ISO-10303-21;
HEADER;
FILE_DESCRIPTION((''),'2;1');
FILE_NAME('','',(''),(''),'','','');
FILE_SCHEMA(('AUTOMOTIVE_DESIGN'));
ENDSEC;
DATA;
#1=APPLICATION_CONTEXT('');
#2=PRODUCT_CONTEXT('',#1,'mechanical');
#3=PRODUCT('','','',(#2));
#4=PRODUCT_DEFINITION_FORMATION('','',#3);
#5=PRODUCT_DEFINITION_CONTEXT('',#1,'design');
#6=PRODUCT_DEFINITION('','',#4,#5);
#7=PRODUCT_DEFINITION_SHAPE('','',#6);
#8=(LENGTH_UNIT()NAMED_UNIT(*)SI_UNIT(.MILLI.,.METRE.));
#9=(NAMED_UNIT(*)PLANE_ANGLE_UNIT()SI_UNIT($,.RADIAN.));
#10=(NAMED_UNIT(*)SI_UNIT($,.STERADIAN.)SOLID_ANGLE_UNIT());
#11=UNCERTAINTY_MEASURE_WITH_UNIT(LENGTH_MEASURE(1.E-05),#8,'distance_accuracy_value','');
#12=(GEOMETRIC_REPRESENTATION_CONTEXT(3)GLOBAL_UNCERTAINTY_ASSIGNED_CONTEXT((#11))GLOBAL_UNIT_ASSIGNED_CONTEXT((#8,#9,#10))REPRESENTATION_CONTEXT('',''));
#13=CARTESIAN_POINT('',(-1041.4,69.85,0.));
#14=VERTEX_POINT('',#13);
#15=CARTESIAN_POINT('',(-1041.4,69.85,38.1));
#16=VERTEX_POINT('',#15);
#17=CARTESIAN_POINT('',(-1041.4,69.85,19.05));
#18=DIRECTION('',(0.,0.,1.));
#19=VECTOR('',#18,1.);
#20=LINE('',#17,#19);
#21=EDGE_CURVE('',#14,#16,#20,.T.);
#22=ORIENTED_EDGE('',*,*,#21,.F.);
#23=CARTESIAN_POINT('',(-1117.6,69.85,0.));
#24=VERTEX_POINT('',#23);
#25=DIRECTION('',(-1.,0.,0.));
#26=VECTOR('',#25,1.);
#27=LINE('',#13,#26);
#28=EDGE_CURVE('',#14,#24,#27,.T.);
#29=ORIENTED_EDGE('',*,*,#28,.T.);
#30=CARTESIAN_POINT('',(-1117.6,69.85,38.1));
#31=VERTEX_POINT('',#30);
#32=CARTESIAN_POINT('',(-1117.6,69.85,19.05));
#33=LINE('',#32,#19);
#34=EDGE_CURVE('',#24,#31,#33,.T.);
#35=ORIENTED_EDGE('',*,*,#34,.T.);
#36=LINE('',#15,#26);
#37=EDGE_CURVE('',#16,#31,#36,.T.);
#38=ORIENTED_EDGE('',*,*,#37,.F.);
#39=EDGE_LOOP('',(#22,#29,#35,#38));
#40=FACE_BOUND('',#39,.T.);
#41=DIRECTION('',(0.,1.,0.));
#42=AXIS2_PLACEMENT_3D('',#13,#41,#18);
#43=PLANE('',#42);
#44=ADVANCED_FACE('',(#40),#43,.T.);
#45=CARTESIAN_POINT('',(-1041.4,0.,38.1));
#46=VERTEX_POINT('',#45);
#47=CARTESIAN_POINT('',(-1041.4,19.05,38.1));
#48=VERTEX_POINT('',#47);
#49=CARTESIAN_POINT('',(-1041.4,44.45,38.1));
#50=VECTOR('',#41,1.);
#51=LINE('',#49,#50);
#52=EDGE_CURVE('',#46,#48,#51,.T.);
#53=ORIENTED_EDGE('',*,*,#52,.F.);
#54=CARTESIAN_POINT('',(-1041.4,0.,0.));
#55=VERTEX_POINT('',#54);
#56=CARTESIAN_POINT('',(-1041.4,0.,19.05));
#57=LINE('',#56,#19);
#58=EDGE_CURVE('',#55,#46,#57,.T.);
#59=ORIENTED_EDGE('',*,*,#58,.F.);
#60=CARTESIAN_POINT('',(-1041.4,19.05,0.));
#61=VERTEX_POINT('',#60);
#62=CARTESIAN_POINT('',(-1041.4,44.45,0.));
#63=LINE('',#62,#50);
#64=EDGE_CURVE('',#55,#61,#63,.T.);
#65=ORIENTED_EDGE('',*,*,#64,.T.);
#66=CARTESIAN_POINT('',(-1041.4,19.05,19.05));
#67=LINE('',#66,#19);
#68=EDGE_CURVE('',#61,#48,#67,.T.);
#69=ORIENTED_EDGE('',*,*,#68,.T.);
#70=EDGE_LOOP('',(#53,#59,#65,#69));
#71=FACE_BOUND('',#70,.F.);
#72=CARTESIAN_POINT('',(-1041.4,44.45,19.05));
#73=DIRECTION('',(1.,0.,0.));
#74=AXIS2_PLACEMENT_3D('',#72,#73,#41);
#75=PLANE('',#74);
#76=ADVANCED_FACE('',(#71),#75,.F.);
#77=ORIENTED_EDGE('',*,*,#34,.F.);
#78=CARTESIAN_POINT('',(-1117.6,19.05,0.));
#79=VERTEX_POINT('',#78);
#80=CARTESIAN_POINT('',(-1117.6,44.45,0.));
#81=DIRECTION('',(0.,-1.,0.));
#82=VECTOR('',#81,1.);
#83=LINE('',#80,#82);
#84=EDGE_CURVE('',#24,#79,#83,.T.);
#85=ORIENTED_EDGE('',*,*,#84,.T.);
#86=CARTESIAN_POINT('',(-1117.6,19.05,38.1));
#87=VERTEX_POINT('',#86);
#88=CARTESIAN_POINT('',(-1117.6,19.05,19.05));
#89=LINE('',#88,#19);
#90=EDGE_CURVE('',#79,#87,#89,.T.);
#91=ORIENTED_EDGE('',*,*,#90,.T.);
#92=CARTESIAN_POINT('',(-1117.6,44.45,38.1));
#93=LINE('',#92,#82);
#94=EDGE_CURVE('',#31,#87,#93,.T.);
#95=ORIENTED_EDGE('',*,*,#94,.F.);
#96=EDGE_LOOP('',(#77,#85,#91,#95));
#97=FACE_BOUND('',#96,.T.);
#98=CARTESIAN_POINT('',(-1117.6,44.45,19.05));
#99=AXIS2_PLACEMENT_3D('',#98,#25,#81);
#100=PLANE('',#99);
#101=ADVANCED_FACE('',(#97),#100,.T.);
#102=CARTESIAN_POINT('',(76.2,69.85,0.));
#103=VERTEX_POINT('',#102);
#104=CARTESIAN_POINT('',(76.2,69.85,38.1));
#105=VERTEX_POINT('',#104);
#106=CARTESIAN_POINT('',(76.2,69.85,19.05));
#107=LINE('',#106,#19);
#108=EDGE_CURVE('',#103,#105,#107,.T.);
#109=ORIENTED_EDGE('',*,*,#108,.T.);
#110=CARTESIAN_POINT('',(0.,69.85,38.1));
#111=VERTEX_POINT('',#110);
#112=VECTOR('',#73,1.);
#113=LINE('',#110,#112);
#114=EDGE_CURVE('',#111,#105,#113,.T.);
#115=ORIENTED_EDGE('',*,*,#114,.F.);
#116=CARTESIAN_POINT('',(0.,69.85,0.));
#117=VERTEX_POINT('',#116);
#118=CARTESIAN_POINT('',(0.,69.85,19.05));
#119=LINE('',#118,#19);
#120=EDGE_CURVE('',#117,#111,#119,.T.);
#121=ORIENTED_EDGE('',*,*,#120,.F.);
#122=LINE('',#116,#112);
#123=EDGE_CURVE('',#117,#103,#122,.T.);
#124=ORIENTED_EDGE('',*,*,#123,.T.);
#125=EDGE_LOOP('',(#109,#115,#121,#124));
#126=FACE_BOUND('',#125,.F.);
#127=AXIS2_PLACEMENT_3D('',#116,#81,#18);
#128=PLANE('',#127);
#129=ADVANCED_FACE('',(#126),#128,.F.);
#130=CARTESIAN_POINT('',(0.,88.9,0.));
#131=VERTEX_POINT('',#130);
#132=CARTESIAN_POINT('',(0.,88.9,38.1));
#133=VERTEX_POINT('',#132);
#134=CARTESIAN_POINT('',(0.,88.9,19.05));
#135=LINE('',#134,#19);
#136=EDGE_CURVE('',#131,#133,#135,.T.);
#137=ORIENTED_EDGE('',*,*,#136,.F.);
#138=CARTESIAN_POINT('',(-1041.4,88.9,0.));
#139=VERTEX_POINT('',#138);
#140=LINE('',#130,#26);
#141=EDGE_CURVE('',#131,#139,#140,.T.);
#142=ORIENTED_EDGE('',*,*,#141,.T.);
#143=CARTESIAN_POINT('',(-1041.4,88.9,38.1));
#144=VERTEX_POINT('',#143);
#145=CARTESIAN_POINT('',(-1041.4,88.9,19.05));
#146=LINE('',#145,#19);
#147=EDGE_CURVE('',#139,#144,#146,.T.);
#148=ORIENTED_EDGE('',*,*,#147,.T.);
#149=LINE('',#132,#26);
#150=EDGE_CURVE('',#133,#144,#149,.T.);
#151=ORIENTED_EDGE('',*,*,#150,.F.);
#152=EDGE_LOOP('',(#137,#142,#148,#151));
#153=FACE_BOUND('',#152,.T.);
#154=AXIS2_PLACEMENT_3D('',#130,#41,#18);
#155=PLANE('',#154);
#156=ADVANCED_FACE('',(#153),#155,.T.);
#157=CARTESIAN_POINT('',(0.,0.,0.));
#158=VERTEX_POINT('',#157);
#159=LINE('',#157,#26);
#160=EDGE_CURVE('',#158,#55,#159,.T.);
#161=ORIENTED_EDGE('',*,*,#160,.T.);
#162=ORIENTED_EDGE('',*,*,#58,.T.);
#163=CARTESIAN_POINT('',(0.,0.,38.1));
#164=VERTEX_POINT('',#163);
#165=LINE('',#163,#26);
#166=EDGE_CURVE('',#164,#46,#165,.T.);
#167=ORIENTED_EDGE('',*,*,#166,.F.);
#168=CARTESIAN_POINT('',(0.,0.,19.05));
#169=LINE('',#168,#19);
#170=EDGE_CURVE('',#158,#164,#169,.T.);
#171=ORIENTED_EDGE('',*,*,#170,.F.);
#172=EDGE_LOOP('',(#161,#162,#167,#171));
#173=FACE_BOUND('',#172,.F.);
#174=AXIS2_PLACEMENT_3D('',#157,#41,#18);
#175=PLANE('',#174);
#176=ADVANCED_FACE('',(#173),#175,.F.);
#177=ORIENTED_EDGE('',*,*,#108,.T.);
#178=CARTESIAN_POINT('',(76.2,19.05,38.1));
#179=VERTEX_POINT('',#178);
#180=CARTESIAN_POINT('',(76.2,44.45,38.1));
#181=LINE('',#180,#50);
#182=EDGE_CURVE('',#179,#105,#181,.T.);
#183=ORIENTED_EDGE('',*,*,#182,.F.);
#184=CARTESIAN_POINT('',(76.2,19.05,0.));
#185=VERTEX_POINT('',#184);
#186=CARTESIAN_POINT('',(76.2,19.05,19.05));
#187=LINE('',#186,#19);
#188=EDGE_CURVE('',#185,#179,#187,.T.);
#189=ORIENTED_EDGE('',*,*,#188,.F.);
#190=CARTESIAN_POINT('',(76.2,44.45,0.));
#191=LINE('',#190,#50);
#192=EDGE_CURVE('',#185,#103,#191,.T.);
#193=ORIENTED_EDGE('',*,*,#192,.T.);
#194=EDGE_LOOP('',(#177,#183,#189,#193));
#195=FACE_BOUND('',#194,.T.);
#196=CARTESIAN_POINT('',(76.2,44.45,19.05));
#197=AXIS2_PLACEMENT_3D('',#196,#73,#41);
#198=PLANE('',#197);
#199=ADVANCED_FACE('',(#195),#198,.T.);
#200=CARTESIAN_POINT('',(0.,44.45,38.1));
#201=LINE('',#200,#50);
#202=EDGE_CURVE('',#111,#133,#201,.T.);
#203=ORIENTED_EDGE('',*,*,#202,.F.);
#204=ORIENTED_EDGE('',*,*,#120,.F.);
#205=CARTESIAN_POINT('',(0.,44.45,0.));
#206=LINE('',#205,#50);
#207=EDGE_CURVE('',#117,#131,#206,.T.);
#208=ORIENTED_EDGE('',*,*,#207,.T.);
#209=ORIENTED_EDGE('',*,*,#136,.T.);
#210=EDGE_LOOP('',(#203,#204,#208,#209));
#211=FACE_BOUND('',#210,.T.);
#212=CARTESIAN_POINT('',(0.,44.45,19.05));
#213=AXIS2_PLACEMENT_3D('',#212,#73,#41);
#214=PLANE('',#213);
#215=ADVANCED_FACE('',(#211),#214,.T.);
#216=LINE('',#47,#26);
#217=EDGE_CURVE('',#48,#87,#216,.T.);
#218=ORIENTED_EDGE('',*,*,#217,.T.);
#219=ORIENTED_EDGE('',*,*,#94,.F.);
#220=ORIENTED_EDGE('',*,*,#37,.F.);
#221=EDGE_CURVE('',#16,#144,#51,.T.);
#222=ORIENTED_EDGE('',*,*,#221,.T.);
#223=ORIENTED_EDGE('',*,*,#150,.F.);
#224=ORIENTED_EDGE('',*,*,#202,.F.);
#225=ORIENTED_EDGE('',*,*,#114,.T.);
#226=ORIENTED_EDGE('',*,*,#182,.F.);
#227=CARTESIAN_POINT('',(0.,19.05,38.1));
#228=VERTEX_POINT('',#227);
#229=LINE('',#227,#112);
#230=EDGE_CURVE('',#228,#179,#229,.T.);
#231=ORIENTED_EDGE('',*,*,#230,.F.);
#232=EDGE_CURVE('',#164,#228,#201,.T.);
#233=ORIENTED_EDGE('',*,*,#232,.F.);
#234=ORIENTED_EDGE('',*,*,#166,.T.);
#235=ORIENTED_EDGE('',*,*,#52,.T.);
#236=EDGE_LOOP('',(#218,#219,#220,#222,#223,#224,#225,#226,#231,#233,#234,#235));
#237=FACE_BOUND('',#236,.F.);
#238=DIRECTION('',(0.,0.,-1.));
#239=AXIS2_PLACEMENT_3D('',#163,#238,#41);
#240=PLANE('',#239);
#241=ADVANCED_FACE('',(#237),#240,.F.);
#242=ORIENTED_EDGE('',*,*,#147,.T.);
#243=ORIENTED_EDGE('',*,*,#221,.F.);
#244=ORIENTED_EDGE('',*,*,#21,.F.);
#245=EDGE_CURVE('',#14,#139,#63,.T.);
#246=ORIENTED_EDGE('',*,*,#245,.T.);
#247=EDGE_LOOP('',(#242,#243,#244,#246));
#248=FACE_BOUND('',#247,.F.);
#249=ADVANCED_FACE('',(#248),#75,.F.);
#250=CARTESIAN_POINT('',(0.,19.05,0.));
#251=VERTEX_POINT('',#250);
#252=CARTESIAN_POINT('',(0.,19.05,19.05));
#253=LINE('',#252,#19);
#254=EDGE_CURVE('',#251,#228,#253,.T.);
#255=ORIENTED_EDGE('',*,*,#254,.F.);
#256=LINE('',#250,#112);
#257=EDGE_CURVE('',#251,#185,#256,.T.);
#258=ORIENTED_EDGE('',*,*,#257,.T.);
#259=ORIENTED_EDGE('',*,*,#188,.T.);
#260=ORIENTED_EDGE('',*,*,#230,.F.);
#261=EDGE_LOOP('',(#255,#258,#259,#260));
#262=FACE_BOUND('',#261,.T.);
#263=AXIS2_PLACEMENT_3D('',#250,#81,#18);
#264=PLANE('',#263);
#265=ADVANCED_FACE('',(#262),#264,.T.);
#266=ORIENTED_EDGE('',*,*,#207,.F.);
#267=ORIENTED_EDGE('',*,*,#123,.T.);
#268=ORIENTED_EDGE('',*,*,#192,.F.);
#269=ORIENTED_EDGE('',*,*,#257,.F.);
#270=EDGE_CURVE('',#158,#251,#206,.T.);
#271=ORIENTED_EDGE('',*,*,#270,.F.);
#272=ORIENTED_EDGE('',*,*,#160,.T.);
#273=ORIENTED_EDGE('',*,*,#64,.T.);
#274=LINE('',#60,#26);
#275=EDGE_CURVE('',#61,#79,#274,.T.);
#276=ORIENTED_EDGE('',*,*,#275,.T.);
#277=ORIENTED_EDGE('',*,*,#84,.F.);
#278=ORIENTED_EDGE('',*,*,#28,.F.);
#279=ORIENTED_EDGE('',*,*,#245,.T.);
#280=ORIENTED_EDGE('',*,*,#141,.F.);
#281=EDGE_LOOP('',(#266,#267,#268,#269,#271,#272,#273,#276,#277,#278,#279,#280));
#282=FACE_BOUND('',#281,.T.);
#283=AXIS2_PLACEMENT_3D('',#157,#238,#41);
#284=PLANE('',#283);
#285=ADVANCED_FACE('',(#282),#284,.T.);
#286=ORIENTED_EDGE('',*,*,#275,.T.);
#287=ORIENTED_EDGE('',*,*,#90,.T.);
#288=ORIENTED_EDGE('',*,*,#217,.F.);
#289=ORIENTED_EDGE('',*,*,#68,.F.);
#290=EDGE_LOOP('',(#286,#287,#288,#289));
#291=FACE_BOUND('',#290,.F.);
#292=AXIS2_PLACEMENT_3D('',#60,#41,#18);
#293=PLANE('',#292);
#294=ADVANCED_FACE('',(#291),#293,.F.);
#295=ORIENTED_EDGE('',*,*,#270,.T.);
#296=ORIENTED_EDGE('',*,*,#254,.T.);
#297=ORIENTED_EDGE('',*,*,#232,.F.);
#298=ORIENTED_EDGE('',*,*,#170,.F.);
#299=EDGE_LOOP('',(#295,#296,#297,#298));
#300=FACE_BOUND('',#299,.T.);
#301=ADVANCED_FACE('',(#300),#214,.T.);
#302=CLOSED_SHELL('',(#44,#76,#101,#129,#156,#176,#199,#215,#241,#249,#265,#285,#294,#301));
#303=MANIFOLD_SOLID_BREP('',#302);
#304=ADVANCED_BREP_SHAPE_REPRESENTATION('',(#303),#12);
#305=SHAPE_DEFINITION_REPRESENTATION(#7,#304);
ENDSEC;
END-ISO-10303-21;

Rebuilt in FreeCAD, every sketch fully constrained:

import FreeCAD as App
import Part
import Sketcher
Q = App.Units.Quantity


def add_polygon(sketch, points):
    """Adds a closed chain of lines whose ends are joined by coincident constraints."""
    first, n = sketch.GeometryCount, len(points)
    for a, b in zip(points, points[1:] + points[:1]):
        sketch.addGeometry(Part.LineSegment(App.Vector(*a, 0), App.Vector(*b, 0)), False)
    for i in range(n):
        sketch.addConstraint(Sketcher.Constraint("Coincident", first + i, 2, first + (i + 1) % n, 1))

doc = App.newDocument("Part")
body = doc.addObject("PartDesign::Body", "Body")

# Sketch on YZ plane
sketch1 = body.newObject("Sketcher::SketchObject", "Sketch")
sketch1.AttachmentSupport = (doc.getObject("YZ_Plane"), [""])
sketch1.MapMode = "FlatFace"
add_polygon(sketch1, [(0, 38), (0, 0), (89, 0), (89, 38)])  # lines 0-3
sketch1.addConstraint(Sketcher.Constraint("Vertical", 0))
sketch1.addConstraint(Sketcher.Constraint("Horizontal", 1))
sketch1.addConstraint(Sketcher.Constraint("Vertical", 2))
sketch1.addConstraint(Sketcher.Constraint("Horizontal", 3))
sketch1.addConstraint(Sketcher.Constraint("Coincident", 0, 2, -1, 1))
sketch1.addConstraint(Sketcher.Constraint("DistanceX", 1, 1, 1, 2, Q("3.5 in")))
sketch1.addConstraint(Sketcher.Constraint("DistanceY", 0, 2, 0, 1, Q("1.5 in")))
pad1 = body.newObject("PartDesign::Pad", "Pad")
pad1.Profile = sketch1
pad1.Length = Q("41 in")
pad1.Reversed = True

# Sketch on YZ plane
sketch2 = body.newObject("Sketcher::SketchObject", "Sketch001")
sketch2.AttachmentSupport = (doc.getObject("YZ_Plane"), [""])
sketch2.MapMode = "FlatFace"
add_polygon(sketch2, [(19, 38), (19, 0), (70, 0), (70, 38)])  # lines 0-3
sketch2.addConstraint(Sketcher.Constraint("Vertical", 0))
sketch2.addConstraint(Sketcher.Constraint("Horizontal", 1))
sketch2.addConstraint(Sketcher.Constraint("Vertical", 2))
sketch2.addConstraint(Sketcher.Constraint("Horizontal", 3))
sketch2.addConstraint(Sketcher.Constraint("PointOnObject", 0, 2, -1))
sketch2.addConstraint(Sketcher.Constraint("DistanceX", 1, 1, 1, 2, Q("2 in")))
sketch2.addConstraint(Sketcher.Constraint("DistanceY", 0, 2, 0, 1, Q("1.5 in")))
sketch2.addConstraint(Sketcher.Constraint("DistanceX", -1, 1, 0, 2, Q("0.75 in")))
pad2 = body.newObject("PartDesign::Pad", "Pad001")
pad2.Profile = sketch2
pad2.Length = Q("3 in")

# Sketch on YZ plane
sketch3 = body.newObject("Sketcher::SketchObject", "Sketch002")
sketch3.AttachmentSupport = (doc.getObject("YZ_Plane"), [""])
sketch3.MapMode = "FlatFace"
sketch3.AttachmentOffset = App.Placement(App.Vector(0, 0, -41 * 25.4), App.Rotation())
add_polygon(sketch3, [(70, 38), (70, 0), (19, 0), (19, 38)])  # lines 0-3
sketch3.addConstraint(Sketcher.Constraint("Vertical", 0))
sketch3.addConstraint(Sketcher.Constraint("Horizontal", 1))
sketch3.addConstraint(Sketcher.Constraint("Vertical", 2))
sketch3.addConstraint(Sketcher.Constraint("Horizontal", 3))
sketch3.addConstraint(Sketcher.Constraint("PointOnObject", 0, 2, -1))
sketch3.addConstraint(Sketcher.Constraint("DistanceX", 1, 2, 1, 1, Q("2 in")))
sketch3.addConstraint(Sketcher.Constraint("DistanceY", 0, 2, 0, 1, Q("1.5 in")))
sketch3.addConstraint(Sketcher.Constraint("DistanceX", -1, 1, 0, 2, Q("2.75 in")))
pad3 = body.newObject("PartDesign::Pad", "Pad002")
pad3.Profile = sketch3
pad3.Length = Q("3 in")
pad3.Reversed = True

doc.recompute()
